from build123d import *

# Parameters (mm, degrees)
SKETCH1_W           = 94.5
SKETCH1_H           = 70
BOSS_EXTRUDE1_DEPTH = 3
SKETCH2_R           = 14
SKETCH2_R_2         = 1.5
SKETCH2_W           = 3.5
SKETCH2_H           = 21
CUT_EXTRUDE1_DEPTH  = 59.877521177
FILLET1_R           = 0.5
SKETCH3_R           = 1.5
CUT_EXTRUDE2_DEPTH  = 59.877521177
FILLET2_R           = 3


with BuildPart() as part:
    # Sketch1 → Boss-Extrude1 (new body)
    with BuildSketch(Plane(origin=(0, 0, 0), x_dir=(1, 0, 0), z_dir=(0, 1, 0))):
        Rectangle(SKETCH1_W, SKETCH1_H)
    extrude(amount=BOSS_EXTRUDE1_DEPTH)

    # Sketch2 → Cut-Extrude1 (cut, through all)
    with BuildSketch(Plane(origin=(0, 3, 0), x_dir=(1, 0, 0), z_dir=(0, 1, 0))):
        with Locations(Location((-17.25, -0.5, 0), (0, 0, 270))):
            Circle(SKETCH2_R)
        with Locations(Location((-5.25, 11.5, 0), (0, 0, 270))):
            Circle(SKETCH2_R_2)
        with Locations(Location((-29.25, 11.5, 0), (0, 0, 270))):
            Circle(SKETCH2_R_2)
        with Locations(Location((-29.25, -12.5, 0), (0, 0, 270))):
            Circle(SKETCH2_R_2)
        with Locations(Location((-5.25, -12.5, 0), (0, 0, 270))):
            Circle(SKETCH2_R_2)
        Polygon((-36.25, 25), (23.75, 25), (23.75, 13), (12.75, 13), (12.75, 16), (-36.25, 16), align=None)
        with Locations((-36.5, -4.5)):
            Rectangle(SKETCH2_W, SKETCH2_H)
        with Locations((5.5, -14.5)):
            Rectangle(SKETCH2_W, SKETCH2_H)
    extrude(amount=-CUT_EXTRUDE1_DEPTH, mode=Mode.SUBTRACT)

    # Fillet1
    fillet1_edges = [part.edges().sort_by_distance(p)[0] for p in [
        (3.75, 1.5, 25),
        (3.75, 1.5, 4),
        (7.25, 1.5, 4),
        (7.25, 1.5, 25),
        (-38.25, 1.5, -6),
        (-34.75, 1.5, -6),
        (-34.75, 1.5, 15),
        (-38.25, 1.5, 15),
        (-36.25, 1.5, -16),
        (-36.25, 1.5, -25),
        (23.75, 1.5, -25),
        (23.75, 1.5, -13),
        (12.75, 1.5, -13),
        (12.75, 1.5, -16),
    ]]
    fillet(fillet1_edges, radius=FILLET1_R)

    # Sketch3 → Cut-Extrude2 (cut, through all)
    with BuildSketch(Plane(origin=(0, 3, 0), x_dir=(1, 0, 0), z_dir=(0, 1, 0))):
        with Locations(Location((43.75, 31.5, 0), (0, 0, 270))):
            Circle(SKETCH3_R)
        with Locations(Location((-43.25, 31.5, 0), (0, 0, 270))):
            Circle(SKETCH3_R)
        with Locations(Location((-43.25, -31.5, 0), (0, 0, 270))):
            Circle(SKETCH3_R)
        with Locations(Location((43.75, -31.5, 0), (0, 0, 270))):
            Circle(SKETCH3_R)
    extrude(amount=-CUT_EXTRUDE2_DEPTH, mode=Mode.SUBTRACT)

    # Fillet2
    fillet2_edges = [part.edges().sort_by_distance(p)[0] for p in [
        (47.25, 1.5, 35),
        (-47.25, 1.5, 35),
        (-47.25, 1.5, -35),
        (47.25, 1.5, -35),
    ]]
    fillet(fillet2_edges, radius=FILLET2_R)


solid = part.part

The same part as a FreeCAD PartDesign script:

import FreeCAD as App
import Part
import Sketcher


def edges_at(feature, points):
    """Names of the edges that pass closest to the given points."""
    edges = feature.Shape.Edges
    near = lambda p: min(range(len(edges)), key=lambda i: edges[i].distToShape(Part.Vertex(*p))[0])
    return sorted({f"Edge{near(p) + 1}" for p in points})

doc = App.newDocument("Part")
body = doc.addObject("PartDesign::Body", "Body")

# Sketch on XZ plane
sketch1 = body.newObject("Sketcher::SketchObject", "Sketch")
sketch1.AttachmentSupport = (doc.getObject("XZ_Plane"), [""])
sketch1.MapMode = "FlatFace"
sketch1.addGeometry(Part.LineSegment(App.Vector(-47, -35, 0), App.Vector(-47, 35, 0)), False)
sketch1.addGeometry(Part.LineSegment(App.Vector(-47, 35, 0), App.Vector(47, 35, 0)), False)
sketch1.addGeometry(Part.LineSegment(App.Vector(47, 35, 0), App.Vector(47, -35, 0)), False)
sketch1.addGeometry(Part.LineSegment(App.Vector(47, -35, 0), App.Vector(-47, -35, 0)), False)
sketch1.addConstraint(Sketcher.Constraint("Coincident", 0, 2, 1, 1))
sketch1.addConstraint(Sketcher.Constraint("Coincident", 1, 2, 2, 1))
sketch1.addConstraint(Sketcher.Constraint("Coincident", 2, 2, 3, 1))
sketch1.addConstraint(Sketcher.Constraint("Coincident", 3, 2, 0, 1))
sketch1.addConstraint(Sketcher.Constraint("Vertical", 0))
sketch1.addConstraint(Sketcher.Constraint("Horizontal", 1))
sketch1.addConstraint(Sketcher.Constraint("Vertical", 2))
sketch1.addConstraint(Sketcher.Constraint("Horizontal", 3))
sketch1.addConstraint(Sketcher.Constraint("Symmetric", 0, 2, 2, 2, -1, 1))
sketch1.addConstraint(Sketcher.Constraint("DistanceY", 0, 1, 0, 2, 70.0))
sketch1.addConstraint(Sketcher.Constraint("DistanceX", 1, 1, 1, 2, 94.5))
pad1 = body.newObject("PartDesign::Pad", "Pad")
pad1.Profile = sketch1
pad1.Length = 3
pad1.Reversed = True

# Sketch on XZ plane
sketch2 = body.newObject("Sketcher::SketchObject", "Sketch001")
sketch2.AttachmentSupport = (doc.getObject("XZ_Plane"), [""])
sketch2.MapMode = "FlatFace"
sketch2.AttachmentOffset = App.Placement(App.Vector(0, 0, -3), App.Rotation())
sketch2.addGeometry(Part.Circle(App.Vector(-17.2, 0.5, 0), App.Vector(0, 0, 1), 14), False)
sketch2.addGeometry(Part.Circle(App.Vector(-5.2, -11.5, 0), App.Vector(0, 0, 1), 1.5), False)
sketch2.addGeometry(Part.Circle(App.Vector(-29.2, -11.5, 0), App.Vector(0, 0, 1), 1.5), False)
sketch2.addGeometry(Part.Circle(App.Vector(-29.2, 12.5, 0), App.Vector(0, 0, 1), 1.5), False)
sketch2.addGeometry(Part.Circle(App.Vector(-5.2, 12.5, 0), App.Vector(0, 0, 1), 1.5), False)
sketch2.addGeometry(Part.LineSegment(App.Vector(23.8, -25, 0), App.Vector(-36.2, -25, 0)), False)
sketch2.addGeometry(Part.LineSegment(App.Vector(-36.2, -25, 0), App.Vector(-36.2, -16, 0)), False)
sketch2.addGeometry(Part.LineSegment(App.Vector(-36.2, -16, 0), App.Vector(12.8, -16, 0)), False)
sketch2.addGeometry(Part.LineSegment(App.Vector(12.8, -16, 0), App.Vector(12.8, -13, 0)), False)
sketch2.addGeometry(Part.LineSegment(App.Vector(12.8, -13, 0), App.Vector(23.8, -13, 0)), False)
sketch2.addGeometry(Part.LineSegment(App.Vector(23.8, -13, 0), App.Vector(23.8, -25, 0)), False)
sketch2.addGeometry(Part.LineSegment(App.Vector(-38.2, -6, 0), App.Vector(-38.2, 15, 0)), False)
sketch2.addGeometry(Part.LineSegment(App.Vector(-38.2, 15, 0), App.Vector(-34.8, 15, 0)), False)
sketch2.addGeometry(Part.LineSegment(App.Vector(-34.8, 15, 0), App.Vector(-34.8, -6, 0)), False)
sketch2.addGeometry(Part.LineSegment(App.Vector(-34.8, -6, 0), App.Vector(-38.2, -6, 0)), False)
sketch2.addGeometry(Part.LineSegment(App.Vector(3.8, 4, 0), App.Vector(3.8, 25, 0)), False)
sketch2.addGeometry(Part.LineSegment(App.Vector(3.8, 25, 0), App.Vector(7.2, 25, 0)), False)
sketch2.addGeometry(Part.LineSegment(App.Vector(7.2, 25, 0), App.Vector(7.2, 4, 0)), False)
sketch2.addGeometry(Part.LineSegment(App.Vector(7.2, 4, 0), App.Vector(3.8, 4, 0)), False)
sketch2.addConstraint(Sketcher.Constraint("Coincident", 5, 2, 6, 1))
sketch2.addConstraint(Sketcher.Constraint("Coincident", 6, 2, 7, 1))
sketch2.addConstraint(Sketcher.Constraint("Coincident", 7, 2, 8, 1))
sketch2.addConstraint(Sketcher.Constraint("Coincident", 8, 2, 9, 1))
sketch2.addConstraint(Sketcher.Constraint("Coincident", 9, 2, 10, 1))
sketch2.addConstraint(Sketcher.Constraint("Coincident", 10, 2, 5, 1))
sketch2.addConstraint(Sketcher.Constraint("Coincident", 11, 2, 12, 1))
sketch2.addConstraint(Sketcher.Constraint("Coincident", 12, 2, 13, 1))
sketch2.addConstraint(Sketcher.Constraint("Coincident", 13, 2, 14, 1))
sketch2.addConstraint(Sketcher.Constraint("Coincident", 14, 2, 11, 1))
sketch2.addConstraint(Sketcher.Constraint("Coincident", 15, 2, 16, 1))
sketch2.addConstraint(Sketcher.Constraint("Coincident", 16, 2, 17, 1))
sketch2.addConstraint(Sketcher.Constraint("Coincident", 17, 2, 18, 1))
sketch2.addConstraint(Sketcher.Constraint("Coincident", 18, 2, 15, 1))
sketch2.addConstraint(Sketcher.Constraint("Horizontal", 5))
sketch2.addConstraint(Sketcher.Constraint("Vertical", 6))
sketch2.addConstraint(Sketcher.Constraint("Horizontal", 7))
sketch2.addConstraint(Sketcher.Constraint("Vertical", 8))
sketch2.addConstraint(Sketcher.Constraint("Horizontal", 9))
sketch2.addConstraint(Sketcher.Constraint("Vertical", 10))
sketch2.addConstraint(Sketcher.Constraint("Vertical", 11))
sketch2.addConstraint(Sketcher.Constraint("Horizontal", 12))
sketch2.addConstraint(Sketcher.Constraint("Vertical", 13))
sketch2.addConstraint(Sketcher.Constraint("Horizontal", 14))
sketch2.addConstraint(Sketcher.Constraint("Vertical", 15))
sketch2.addConstraint(Sketcher.Constraint("Horizontal", 16))
sketch2.addConstraint(Sketcher.Constraint("Vertical", 17))
sketch2.addConstraint(Sketcher.Constraint("Horizontal", 18))
sketch2.addConstraint(Sketcher.Constraint("Equal", 1, 2))
sketch2.addConstraint(Sketcher.Constraint("Equal", 2, 3))
sketch2.addConstraint(Sketcher.Constraint("Equal", 3, 4))
sketch2.addConstraint(Sketcher.Constraint("Horizontal", 1, 3, 2, 3))
sketch2.addConstraint(Sketcher.Constraint("Horizontal", 3, 3, 4, 3))
sketch2.addConstraint(Sketcher.Constraint("Vertical", 2, 3, 3, 3))
sketch2.addConstraint(Sketcher.Constraint("Vertical", 1, 3, 4, 3))
sketch2.addConstraint(Sketcher.Constraint("Equal", 14, 16))
sketch2.addConstraint(Sketcher.Constraint("Equal", 13, 15))
sketch2.addConstraint(Sketcher.Constraint("Diameter", 0, 28.0))
sketch2.addConstraint(Sketcher.Constraint("Diameter", 1, 3.0))
sketch2.addConstraint(Sketcher.Constraint("DistanceX", 5, 2, 5, 1, 60.0))
sketch2.addConstraint(Sketcher.Constraint("DistanceX", 7, 1, 7, 2, 49.0))
sketch2.addConstraint(Sketcher.Constraint("DistanceY", 6, 1, 6, 2, 9.0))
sketch2.addConstraint(Sketcher.Constraint("DistanceY", 8, 1, 8, 2, 3.0))
sketch2.addConstraint(Sketcher.Constraint("DistanceY", 11, 1, 11, 2, 21.0))
sketch2.addConstraint(Sketcher.Constraint("DistanceX", 12, 1, 12, 2, 3.5))
sketch2.addConstraint(Sketcher.Constraint("DistanceY", 5, 2, -1, 1, 25.0))
sketch2.addConstraint(Sketcher.Constraint("DistanceY", -1, 1, 11, 2, 15.0))
sketch2.addConstraint(Sketcher.Constraint("DistanceY", -1, 1, 15, 2, 25.0))
sketch2.addConstraint(Sketcher.Constraint("DistanceX", 0, 3, 1, 3, 12.0))
sketch2.addConstraint(Sketcher.Constraint("DistanceY", 1, 3, 0, 3, 12.0))
sketch2.addConstraint(Sketcher.Constraint("DistanceX", 2, 3, 0, 3, 12.0))
sketch2.addConstraint(Sketcher.Constraint("DistanceY", 0, 3, 3, 3, 12.0))
sketch2.addConstraint(Sketcher.Constraint("DistanceX", 5, 2, 2, 3, 7.0))
sketch2.addConstraint(Sketcher.Constraint("DistanceX", 11, 2, 3, 3, 9.0))
sketch2.addConstraint(Sketcher.Constraint("DistanceX", 4, 3, 15, 2, 9.0))
sketch2.addConstraint(Sketcher.Constraint("DistanceY", -1, 1, 0, 3, 0.5))
sketch2.addConstraint(Sketcher.Constraint("DistanceX", 0, 3, -1, 1, 17.25))
pocket1 = body.newObject("PartDesign::Pocket", "Pocket")
pocket1.Profile = sketch2
pocket1.Type = "ThroughAll"
pocket1.Reversed = True
doc.recompute()

fillet = body.newObject("PartDesign::Fillet", "Fillet")
fillet.Base = (pocket1, edges_at(pocket1, [
    (3.75, 1.5, 25),
    (3.75, 1.5, 4),
    (7.25, 1.5, 4),
    (7.25, 1.5, 25),
    (-38.25, 1.5, -6),
    (-34.75, 1.5, -6),
    (-34.75, 1.5, 15),
    (-38.25, 1.5, 15),
    (-36.25, 1.5, -16),
    (-36.25, 1.5, -25),
    (23.75, 1.5, -25),
    (23.75, 1.5, -13),
    (12.75, 1.5, -13),
    (12.75, 1.5, -16),
]))
fillet.Radius = 0.5

# Sketch on XZ plane
sketch3 = body.newObject("Sketcher::SketchObject", "Sketch002")
sketch3.AttachmentSupport = (doc.getObject("XZ_Plane"), [""])
sketch3.MapMode = "FlatFace"
sketch3.AttachmentOffset = App.Placement(App.Vector(0, 0, -3), App.Rotation())
sketch3.addGeometry(Part.Circle(App.Vector(43.8, -31.5, 0), App.Vector(0, 0, 1), 1.5), False)
sketch3.addGeometry(Part.Circle(App.Vector(-43.2, -31.5, 0), App.Vector(0, 0, 1), 1.5), False)
sketch3.addGeometry(Part.Circle(App.Vector(-43.2, 31.5, 0), App.Vector(0, 0, 1), 1.5), False)
sketch3.addGeometry(Part.Circle(App.Vector(43.8, 31.5, 0), App.Vector(0, 0, 1), 1.5), False)
sketch3.addConstraint(Sketcher.Constraint("Equal", 0, 1))
sketch3.addConstraint(Sketcher.Constraint("Equal", 1, 2))
sketch3.addConstraint(Sketcher.Constraint("Equal", 2, 3))
sketch3.addConstraint(Sketcher.Constraint("Symmetric", 1, 3, 2, 3, -1))
sketch3.addConstraint(Sketcher.Constraint("Symmetric", 0, 3, 3, 3, -1))
sketch3.addConstraint(Sketcher.Constraint("Horizontal", 0, 3, 1, 3))
sketch3.addConstraint(Sketcher.Constraint("Diameter", 0, 3.0))
sketch3.addConstraint(Sketcher.Constraint("DistanceX", 1, 3, 0, 3, 87.0))
sketch3.addConstraint(Sketcher.Constraint("DistanceY", 1, 3, 2, 3, 63.0))
sketch3.addConstraint(Sketcher.Constraint("DistanceX", -1, 1, 0, 3, 43.75))
pocket2 = body.newObject("PartDesign::Pocket", "Pocket001")
pocket2.Profile = sketch3
pocket2.Type = "ThroughAll"
pocket2.Reversed = True
doc.recompute()

fillet2 = body.newObject("PartDesign::Fillet", "Fillet001")
fillet2.Base = (pocket2, edges_at(pocket2, [
    (47.25, 1.5, 35),
    (-47.25, 1.5, 35),
    (-47.25, 1.5, -35),
    (47.25, 1.5, -35),
]))
fillet2.Radius = 3

doc.recompute()
